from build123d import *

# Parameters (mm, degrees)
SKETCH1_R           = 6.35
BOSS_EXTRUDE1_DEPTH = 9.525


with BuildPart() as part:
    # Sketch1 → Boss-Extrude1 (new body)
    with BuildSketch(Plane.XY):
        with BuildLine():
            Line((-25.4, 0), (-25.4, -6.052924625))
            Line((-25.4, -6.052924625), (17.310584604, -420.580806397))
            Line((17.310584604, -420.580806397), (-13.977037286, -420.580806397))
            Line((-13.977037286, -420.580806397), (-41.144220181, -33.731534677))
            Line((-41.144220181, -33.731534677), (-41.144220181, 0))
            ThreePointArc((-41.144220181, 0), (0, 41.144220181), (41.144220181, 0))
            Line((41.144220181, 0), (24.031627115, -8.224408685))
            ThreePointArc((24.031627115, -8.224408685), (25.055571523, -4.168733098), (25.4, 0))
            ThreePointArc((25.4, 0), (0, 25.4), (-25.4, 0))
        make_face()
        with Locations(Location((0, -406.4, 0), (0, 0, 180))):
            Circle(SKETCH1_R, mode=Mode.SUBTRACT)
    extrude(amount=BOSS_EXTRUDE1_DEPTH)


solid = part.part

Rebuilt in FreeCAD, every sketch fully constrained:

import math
import FreeCAD as App
import Part
import Sketcher

V = App.Vector
Q = App.Units.Quantity

doc = App.newDocument("Part")
body = doc.addObject("PartDesign::Body", "Body")

sketch1 = body.newObject("Sketcher::SketchObject", "Sketch")
sketch1.AttachmentSupport = (doc.getObject("XY_Plane"), [""])
sketch1.MapMode = "FlatFace"
sketch1.addGeometry(Part.LineSegment(V(-25, -6, 0), V(-25, 0, 0)), False)
sketch1.addGeometry(Part.ArcOfCircle(Part.Circle(V(0, 0, 0), V(0, 0, 1), 25), math.radians(0), math.radians(180)), False)
sketch1.addGeometry(Part.ArcOfCircle(Part.Circle(V(0, 0, 0), V(0, 0, 1), 25), math.radians(-18.89), math.radians(0)), False)
sketch1.addGeometry(Part.LineSegment(V(24, -8, 0), V(41, 0, 0)), False)
sketch1.addGeometry(Part.ArcOfCircle(Part.Circle(V(0, 0, 0), V(0, 0, 1), 41), math.radians(0), math.radians(180)), False)
sketch1.addGeometry(Part.LineSegment(V(-41, 0, 0), V(-41, -34, 0)), False)
sketch1.addGeometry(Part.LineSegment(V(-41, -34, 0), V(-14, -421, 0)), False)
sketch1.addGeometry(Part.LineSegment(V(-14, -421, 0), V(17, -421, 0)), False)
sketch1.addGeometry(Part.LineSegment(V(17, -421, 0), V(-25, -6, 0)), False)
sketch1.addGeometry(Part.Circle(V(0, -406, 0), V(0, 0, 1), 6), False)
sketch1.addConstraint(Sketcher.Constraint("Tangent", 0, 2, 1, 2))
sketch1.addConstraint(Sketcher.Constraint("Tangent", 1, 1, 2, 2))
sketch1.addConstraint(Sketcher.Constraint("Coincident", 2, 1, 3, 1))
sketch1.addConstraint(Sketcher.Constraint("Coincident", 3, 2, 4, 1))
sketch1.addConstraint(Sketcher.Constraint("Tangent", 4, 2, 5, 1))
sketch1.addConstraint(Sketcher.Constraint("Coincident", 5, 2, 6, 1))
sketch1.addConstraint(Sketcher.Constraint("Coincident", 6, 2, 7, 1))
sketch1.addConstraint(Sketcher.Constraint("Coincident", 7, 2, 8, 1))
sketch1.addConstraint(Sketcher.Constraint("Coincident", 8, 2, 0, 1))
sketch1.addConstraint(Sketcher.Constraint("Vertical", 0))
sketch1.addConstraint(Sketcher.Constraint("Vertical", 5))
sketch1.addConstraint(Sketcher.Constraint("Horizontal", 7))
sketch1.addConstraint(Sketcher.Constraint("Coincident", 1, 3, -1, 1))
sketch1.addConstraint(Sketcher.Constraint("Coincident", 4, 3, -1, 1))
sketch1.addConstraint(Sketcher.Constraint("Equal", 1, 2))
sketch1.addConstraint(Sketcher.Constraint("PointOnObject", 9, 3, -2))
sketch1.addConstraint(Sketcher.Constraint("PointOnObject", 1, 1, -1))
sketch1.addConstraint(Sketcher.Constraint("PointOnObject", 3, 2, -1))
sketch1.addConstraint(Sketcher.Constraint("Radius", 1, Q("1 in")))
sketch1.addConstraint(Sketcher.Constraint("Diameter", 9, Q("0.5 in")))
sketch1.addConstraint(Sketcher.Constraint("DistanceY", 9, 3, -1, 1, Q("16 in")))
sketch1.addConstraint(Sketcher.Constraint("Radius", 4, 41.14422))
sketch1.addConstraint(Sketcher.Constraint("Distance", 8, 416.7224))
sketch1.addConstraint(Sketcher.Constraint("DistanceX", 7, 1, 7, 2, 31.287622))
sketch1.addConstraint(Sketcher.Constraint("Distance", 6, 387.80203))
sketch1.addConstraint(Sketcher.Constraint("DistanceY", 0, 1, 0, 2, 6.052925))
sketch1.addConstraint(Sketcher.Constraint("DistanceY", 5, 2, 5, 1, 33.731535))
sketch1.addConstraint(Sketcher.Constraint("DistanceY", 2, 1, -1, 1, 8.224409))
pad1 = body.newObject("PartDesign::Pad", "Pad")
pad1.Profile = sketch1
pad1.Length = Q("0.375 in")

doc.recompute()
